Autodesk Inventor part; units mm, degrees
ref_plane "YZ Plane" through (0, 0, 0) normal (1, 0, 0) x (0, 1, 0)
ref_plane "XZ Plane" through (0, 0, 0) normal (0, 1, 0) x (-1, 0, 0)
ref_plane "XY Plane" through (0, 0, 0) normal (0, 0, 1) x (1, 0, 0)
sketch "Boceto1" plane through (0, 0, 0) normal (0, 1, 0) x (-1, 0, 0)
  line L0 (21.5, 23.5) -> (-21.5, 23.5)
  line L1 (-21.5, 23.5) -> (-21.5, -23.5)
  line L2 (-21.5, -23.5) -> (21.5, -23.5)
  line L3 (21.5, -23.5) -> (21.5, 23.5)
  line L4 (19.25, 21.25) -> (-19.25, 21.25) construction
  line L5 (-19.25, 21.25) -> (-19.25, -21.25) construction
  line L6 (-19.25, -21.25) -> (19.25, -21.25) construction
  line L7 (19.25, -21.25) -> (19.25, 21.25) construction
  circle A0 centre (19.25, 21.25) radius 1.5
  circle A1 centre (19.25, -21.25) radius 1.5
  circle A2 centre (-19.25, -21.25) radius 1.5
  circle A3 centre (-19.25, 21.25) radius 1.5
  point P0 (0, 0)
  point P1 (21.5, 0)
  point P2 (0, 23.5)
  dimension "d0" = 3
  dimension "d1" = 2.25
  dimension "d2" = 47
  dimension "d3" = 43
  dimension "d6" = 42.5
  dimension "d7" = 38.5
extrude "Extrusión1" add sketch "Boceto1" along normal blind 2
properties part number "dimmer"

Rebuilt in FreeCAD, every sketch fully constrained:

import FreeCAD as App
import Part
import Sketcher

V = App.Vector
Q = App.Units.Quantity


def add_polygon(sketch, points):
    """Adds a closed chain of lines whose ends are joined by coincident constraints."""
    first, n = sketch.GeometryCount, len(points)
    for a, b in zip(points, points[1:] + points[:1]):
        sketch.addGeometry(Part.LineSegment(App.Vector(*a, 0), App.Vector(*b, 0)), False)
    for i in range(n):
        sketch.addConstraint(Sketcher.Constraint("Coincident", first + i, 2, first + (i + 1) % n, 1))

doc = App.newDocument("Part")
body = doc.addObject("PartDesign::Body", "Body")

sketch1 = body.newObject("Sketcher::SketchObject", "Sketch")
sketch1.AttachmentSupport = (doc.getObject("XZ_Plane"), [""])
sketch1.MapMode = "FlatFace"
add_polygon(sketch1, [(-21.5, -23.5), (-21.5, 23.5), (21.5, 23.5), (21.5, -23.5)])
sketch1.addGeometry(Part.Circle(V(19.25, -21.25, 0), V(0, 0, 1), 1.5), False)
sketch1.addGeometry(Part.Circle(V(-19.25, -21.25, 0), V(0, 0, 1), 1.5), False)
sketch1.addGeometry(Part.Circle(V(19.25, 21.25, 0), V(0, 0, 1), 1.5), False)
sketch1.addGeometry(Part.Circle(V(-19.25, 21.25, 0), V(0, 0, 1), 1.5), False)
sketch1.addConstraint(Sketcher.Constraint("Vertical", 0))
sketch1.addConstraint(Sketcher.Constraint("Horizontal", 1))
sketch1.addConstraint(Sketcher.Constraint("Vertical", 2))
sketch1.addConstraint(Sketcher.Constraint("Horizontal", 3))
sketch1.addConstraint(Sketcher.Constraint("Equal", 4, 5))
sketch1.addConstraint(Sketcher.Constraint("Equal", 5, 6))
sketch1.addConstraint(Sketcher.Constraint("Equal", 6, 7))
sketch1.addConstraint(Sketcher.Constraint("Symmetric", 5, 3, 6, 3, -1, 1))
sketch1.addConstraint(Sketcher.Constraint("Symmetric", 4, 3, 7, 3, -1, 1))
sketch1.addConstraint(Sketcher.Constraint("Symmetric", 0, 2, 2, 2, -1, 1))
sketch1.addConstraint(Sketcher.Constraint("Symmetric", 4, 3, 5, 3, -2))
sketch1.addConstraint(Sketcher.Constraint("Diameter", 4, Q("3 mm")))
sketch1.addConstraint(Sketcher.Constraint("DistanceX", 1, 1, 1, 2, Q("43 mm")))
sketch1.addConstraint(Sketcher.Constraint("DistanceY", 0, 1, 0, 2, Q("47 mm")))
sketch1.addConstraint(Sketcher.Constraint("DistanceX", 5, 3, 4, 3, Q("38.5 mm")))
sketch1.addConstraint(Sketcher.Constraint("DistanceY", 4, 3, 6, 3, Q("42.5 mm")))
pad1 = body.newObject("PartDesign::Pad", "Pad")
pad1.Profile = sketch1
pad1.Length = 2
pad1.Reversed = True

doc.recompute()
